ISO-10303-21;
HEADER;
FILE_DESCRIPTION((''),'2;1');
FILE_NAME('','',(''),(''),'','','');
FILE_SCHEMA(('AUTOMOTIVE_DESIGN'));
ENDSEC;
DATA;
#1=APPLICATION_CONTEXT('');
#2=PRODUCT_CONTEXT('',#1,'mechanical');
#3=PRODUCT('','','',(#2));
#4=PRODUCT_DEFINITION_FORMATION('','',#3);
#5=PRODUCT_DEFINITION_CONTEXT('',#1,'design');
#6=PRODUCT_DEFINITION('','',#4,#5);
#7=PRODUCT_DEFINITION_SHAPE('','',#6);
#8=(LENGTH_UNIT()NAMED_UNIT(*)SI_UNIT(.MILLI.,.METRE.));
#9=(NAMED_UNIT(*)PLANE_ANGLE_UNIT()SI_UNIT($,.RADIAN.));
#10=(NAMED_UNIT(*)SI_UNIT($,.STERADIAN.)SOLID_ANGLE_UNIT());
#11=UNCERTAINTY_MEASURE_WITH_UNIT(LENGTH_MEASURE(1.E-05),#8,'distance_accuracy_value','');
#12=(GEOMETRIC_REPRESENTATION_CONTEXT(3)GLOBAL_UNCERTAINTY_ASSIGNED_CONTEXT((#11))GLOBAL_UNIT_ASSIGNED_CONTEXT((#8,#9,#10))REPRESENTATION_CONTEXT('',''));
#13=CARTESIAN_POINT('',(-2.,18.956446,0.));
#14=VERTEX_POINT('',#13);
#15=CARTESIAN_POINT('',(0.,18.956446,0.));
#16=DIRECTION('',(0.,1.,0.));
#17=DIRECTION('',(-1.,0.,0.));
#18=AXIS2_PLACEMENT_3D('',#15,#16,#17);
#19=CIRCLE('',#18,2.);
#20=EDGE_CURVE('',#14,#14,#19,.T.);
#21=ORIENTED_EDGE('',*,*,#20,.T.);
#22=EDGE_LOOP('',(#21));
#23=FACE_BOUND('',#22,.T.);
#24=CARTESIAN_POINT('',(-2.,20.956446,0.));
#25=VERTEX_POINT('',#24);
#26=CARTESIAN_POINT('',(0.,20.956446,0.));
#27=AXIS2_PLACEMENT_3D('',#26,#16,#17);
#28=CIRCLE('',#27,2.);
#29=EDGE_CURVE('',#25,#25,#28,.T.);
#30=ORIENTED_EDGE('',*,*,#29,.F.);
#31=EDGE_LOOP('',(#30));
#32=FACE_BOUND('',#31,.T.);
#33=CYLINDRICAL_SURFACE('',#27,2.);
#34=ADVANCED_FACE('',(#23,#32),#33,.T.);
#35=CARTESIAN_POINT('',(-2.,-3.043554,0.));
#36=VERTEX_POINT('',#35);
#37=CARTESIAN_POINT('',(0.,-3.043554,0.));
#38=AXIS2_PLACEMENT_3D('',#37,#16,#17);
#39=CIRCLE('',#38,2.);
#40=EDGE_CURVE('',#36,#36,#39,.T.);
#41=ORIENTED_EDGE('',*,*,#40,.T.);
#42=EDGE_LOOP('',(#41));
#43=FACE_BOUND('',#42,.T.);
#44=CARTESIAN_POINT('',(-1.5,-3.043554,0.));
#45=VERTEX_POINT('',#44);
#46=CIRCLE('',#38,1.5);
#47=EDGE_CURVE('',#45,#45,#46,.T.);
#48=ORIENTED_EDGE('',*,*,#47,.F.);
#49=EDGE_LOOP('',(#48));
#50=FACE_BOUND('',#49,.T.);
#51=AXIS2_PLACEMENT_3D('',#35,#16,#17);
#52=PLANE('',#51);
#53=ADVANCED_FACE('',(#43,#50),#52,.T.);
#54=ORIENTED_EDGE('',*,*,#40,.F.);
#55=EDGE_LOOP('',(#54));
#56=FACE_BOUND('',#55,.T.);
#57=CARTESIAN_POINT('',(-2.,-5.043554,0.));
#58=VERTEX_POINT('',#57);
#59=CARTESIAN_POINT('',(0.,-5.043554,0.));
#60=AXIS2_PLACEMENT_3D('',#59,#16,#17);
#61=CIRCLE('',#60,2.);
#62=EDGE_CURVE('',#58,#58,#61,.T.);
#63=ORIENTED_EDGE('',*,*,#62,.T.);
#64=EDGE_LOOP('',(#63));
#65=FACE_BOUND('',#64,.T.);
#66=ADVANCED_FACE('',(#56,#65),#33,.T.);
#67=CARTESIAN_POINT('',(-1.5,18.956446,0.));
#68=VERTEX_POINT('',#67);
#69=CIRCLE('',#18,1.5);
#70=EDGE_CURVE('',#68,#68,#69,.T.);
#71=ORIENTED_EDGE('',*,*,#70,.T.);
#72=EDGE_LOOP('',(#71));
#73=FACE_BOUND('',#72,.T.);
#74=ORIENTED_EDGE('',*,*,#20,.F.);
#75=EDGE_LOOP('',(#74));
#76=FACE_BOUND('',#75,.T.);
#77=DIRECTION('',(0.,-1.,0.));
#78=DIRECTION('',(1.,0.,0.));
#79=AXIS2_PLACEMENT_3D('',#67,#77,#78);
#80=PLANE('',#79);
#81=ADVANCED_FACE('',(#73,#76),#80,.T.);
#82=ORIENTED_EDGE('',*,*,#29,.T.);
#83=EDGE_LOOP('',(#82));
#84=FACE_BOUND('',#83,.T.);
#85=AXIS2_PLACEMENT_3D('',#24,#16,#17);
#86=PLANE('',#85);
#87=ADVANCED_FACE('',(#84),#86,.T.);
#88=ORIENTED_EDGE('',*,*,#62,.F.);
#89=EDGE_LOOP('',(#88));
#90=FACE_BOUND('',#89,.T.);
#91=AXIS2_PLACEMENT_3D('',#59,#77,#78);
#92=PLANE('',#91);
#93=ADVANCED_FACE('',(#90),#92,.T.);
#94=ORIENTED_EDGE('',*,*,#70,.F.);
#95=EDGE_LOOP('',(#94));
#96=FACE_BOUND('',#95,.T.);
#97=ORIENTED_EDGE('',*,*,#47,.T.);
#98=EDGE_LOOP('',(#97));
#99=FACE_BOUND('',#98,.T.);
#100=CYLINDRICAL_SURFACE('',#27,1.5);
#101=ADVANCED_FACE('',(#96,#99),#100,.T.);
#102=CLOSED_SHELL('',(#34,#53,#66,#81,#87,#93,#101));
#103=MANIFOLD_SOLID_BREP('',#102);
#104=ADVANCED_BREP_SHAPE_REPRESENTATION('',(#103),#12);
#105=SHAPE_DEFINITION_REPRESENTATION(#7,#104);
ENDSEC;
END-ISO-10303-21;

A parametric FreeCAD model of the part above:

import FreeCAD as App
import Part
import Sketcher


def add_polygon(sketch, points):
    """Adds a closed chain of lines whose ends are joined by coincident constraints."""
    first, n = sketch.GeometryCount, len(points)
    for a, b in zip(points, points[1:] + points[:1]):
        sketch.addGeometry(Part.LineSegment(App.Vector(*a, 0), App.Vector(*b, 0)), False)
    for i in range(n):
        sketch.addConstraint(Sketcher.Constraint("Coincident", first + i, 2, first + (i + 1) % n, 1))

doc = App.newDocument("Part")
body = doc.addObject("PartDesign::Body", "Body")

# Sketch on XY plane
sketch1 = body.newObject("Sketcher::SketchObject", "Sketch")
sketch1.AttachmentSupport = (doc.getObject("XY_Plane"), [""])
sketch1.MapMode = "FlatFace"
add_polygon(sketch1, [(0, -5.043554), (0, 20.956446), (-2, 20.956446), (-2, 18.956446), (-1.5, 18.956446), (-1.5, -3.043554), (-2, -3.043554), (-2, -5.043554)])  # lines 0-7
sketch1.addConstraint(Sketcher.Constraint("Vertical", 0))
sketch1.addConstraint(Sketcher.Constraint("Horizontal", 1))
sketch1.addConstraint(Sketcher.Constraint("Vertical", 2))
sketch1.addConstraint(Sketcher.Constraint("Horizontal", 3))
sketch1.addConstraint(Sketcher.Constraint("Vertical", 4))
sketch1.addConstraint(Sketcher.Constraint("Horizontal", 5))
sketch1.addConstraint(Sketcher.Constraint("Vertical", 6))
sketch1.addConstraint(Sketcher.Constraint("Horizontal", 7))
sketch1.addConstraint(Sketcher.Constraint("PointOnObject", 0, 2, -2))
sketch1.addConstraint(Sketcher.Constraint("Vertical", 2, 2, 5, 2))
sketch1.addConstraint(Sketcher.Constraint("Equal", 7, 2))
sketch1.addConstraint(Sketcher.Constraint("Equal", 2, 6))
sketch1.addConstraint(Sketcher.Constraint("DistanceX", 1, 2, 1, 1, 2.0))
sketch1.addConstraint(Sketcher.Constraint("DistanceY", 0, 1, 0, 2, 26.0))
sketch1.addConstraint(Sketcher.Constraint("DistanceX", 3, 1, 3, 2, 0.5))
sketch1.addConstraint(Sketcher.Constraint("DistanceY", -1, 1, 0, 2, 20.956446))
revolution = body.newObject("PartDesign::Revolution", "Revolution")
revolution.Profile = sketch1
revolution.ReferenceAxis = (sketch1, ["V_Axis"])
revolution.Angle = 360

doc.recompute()
